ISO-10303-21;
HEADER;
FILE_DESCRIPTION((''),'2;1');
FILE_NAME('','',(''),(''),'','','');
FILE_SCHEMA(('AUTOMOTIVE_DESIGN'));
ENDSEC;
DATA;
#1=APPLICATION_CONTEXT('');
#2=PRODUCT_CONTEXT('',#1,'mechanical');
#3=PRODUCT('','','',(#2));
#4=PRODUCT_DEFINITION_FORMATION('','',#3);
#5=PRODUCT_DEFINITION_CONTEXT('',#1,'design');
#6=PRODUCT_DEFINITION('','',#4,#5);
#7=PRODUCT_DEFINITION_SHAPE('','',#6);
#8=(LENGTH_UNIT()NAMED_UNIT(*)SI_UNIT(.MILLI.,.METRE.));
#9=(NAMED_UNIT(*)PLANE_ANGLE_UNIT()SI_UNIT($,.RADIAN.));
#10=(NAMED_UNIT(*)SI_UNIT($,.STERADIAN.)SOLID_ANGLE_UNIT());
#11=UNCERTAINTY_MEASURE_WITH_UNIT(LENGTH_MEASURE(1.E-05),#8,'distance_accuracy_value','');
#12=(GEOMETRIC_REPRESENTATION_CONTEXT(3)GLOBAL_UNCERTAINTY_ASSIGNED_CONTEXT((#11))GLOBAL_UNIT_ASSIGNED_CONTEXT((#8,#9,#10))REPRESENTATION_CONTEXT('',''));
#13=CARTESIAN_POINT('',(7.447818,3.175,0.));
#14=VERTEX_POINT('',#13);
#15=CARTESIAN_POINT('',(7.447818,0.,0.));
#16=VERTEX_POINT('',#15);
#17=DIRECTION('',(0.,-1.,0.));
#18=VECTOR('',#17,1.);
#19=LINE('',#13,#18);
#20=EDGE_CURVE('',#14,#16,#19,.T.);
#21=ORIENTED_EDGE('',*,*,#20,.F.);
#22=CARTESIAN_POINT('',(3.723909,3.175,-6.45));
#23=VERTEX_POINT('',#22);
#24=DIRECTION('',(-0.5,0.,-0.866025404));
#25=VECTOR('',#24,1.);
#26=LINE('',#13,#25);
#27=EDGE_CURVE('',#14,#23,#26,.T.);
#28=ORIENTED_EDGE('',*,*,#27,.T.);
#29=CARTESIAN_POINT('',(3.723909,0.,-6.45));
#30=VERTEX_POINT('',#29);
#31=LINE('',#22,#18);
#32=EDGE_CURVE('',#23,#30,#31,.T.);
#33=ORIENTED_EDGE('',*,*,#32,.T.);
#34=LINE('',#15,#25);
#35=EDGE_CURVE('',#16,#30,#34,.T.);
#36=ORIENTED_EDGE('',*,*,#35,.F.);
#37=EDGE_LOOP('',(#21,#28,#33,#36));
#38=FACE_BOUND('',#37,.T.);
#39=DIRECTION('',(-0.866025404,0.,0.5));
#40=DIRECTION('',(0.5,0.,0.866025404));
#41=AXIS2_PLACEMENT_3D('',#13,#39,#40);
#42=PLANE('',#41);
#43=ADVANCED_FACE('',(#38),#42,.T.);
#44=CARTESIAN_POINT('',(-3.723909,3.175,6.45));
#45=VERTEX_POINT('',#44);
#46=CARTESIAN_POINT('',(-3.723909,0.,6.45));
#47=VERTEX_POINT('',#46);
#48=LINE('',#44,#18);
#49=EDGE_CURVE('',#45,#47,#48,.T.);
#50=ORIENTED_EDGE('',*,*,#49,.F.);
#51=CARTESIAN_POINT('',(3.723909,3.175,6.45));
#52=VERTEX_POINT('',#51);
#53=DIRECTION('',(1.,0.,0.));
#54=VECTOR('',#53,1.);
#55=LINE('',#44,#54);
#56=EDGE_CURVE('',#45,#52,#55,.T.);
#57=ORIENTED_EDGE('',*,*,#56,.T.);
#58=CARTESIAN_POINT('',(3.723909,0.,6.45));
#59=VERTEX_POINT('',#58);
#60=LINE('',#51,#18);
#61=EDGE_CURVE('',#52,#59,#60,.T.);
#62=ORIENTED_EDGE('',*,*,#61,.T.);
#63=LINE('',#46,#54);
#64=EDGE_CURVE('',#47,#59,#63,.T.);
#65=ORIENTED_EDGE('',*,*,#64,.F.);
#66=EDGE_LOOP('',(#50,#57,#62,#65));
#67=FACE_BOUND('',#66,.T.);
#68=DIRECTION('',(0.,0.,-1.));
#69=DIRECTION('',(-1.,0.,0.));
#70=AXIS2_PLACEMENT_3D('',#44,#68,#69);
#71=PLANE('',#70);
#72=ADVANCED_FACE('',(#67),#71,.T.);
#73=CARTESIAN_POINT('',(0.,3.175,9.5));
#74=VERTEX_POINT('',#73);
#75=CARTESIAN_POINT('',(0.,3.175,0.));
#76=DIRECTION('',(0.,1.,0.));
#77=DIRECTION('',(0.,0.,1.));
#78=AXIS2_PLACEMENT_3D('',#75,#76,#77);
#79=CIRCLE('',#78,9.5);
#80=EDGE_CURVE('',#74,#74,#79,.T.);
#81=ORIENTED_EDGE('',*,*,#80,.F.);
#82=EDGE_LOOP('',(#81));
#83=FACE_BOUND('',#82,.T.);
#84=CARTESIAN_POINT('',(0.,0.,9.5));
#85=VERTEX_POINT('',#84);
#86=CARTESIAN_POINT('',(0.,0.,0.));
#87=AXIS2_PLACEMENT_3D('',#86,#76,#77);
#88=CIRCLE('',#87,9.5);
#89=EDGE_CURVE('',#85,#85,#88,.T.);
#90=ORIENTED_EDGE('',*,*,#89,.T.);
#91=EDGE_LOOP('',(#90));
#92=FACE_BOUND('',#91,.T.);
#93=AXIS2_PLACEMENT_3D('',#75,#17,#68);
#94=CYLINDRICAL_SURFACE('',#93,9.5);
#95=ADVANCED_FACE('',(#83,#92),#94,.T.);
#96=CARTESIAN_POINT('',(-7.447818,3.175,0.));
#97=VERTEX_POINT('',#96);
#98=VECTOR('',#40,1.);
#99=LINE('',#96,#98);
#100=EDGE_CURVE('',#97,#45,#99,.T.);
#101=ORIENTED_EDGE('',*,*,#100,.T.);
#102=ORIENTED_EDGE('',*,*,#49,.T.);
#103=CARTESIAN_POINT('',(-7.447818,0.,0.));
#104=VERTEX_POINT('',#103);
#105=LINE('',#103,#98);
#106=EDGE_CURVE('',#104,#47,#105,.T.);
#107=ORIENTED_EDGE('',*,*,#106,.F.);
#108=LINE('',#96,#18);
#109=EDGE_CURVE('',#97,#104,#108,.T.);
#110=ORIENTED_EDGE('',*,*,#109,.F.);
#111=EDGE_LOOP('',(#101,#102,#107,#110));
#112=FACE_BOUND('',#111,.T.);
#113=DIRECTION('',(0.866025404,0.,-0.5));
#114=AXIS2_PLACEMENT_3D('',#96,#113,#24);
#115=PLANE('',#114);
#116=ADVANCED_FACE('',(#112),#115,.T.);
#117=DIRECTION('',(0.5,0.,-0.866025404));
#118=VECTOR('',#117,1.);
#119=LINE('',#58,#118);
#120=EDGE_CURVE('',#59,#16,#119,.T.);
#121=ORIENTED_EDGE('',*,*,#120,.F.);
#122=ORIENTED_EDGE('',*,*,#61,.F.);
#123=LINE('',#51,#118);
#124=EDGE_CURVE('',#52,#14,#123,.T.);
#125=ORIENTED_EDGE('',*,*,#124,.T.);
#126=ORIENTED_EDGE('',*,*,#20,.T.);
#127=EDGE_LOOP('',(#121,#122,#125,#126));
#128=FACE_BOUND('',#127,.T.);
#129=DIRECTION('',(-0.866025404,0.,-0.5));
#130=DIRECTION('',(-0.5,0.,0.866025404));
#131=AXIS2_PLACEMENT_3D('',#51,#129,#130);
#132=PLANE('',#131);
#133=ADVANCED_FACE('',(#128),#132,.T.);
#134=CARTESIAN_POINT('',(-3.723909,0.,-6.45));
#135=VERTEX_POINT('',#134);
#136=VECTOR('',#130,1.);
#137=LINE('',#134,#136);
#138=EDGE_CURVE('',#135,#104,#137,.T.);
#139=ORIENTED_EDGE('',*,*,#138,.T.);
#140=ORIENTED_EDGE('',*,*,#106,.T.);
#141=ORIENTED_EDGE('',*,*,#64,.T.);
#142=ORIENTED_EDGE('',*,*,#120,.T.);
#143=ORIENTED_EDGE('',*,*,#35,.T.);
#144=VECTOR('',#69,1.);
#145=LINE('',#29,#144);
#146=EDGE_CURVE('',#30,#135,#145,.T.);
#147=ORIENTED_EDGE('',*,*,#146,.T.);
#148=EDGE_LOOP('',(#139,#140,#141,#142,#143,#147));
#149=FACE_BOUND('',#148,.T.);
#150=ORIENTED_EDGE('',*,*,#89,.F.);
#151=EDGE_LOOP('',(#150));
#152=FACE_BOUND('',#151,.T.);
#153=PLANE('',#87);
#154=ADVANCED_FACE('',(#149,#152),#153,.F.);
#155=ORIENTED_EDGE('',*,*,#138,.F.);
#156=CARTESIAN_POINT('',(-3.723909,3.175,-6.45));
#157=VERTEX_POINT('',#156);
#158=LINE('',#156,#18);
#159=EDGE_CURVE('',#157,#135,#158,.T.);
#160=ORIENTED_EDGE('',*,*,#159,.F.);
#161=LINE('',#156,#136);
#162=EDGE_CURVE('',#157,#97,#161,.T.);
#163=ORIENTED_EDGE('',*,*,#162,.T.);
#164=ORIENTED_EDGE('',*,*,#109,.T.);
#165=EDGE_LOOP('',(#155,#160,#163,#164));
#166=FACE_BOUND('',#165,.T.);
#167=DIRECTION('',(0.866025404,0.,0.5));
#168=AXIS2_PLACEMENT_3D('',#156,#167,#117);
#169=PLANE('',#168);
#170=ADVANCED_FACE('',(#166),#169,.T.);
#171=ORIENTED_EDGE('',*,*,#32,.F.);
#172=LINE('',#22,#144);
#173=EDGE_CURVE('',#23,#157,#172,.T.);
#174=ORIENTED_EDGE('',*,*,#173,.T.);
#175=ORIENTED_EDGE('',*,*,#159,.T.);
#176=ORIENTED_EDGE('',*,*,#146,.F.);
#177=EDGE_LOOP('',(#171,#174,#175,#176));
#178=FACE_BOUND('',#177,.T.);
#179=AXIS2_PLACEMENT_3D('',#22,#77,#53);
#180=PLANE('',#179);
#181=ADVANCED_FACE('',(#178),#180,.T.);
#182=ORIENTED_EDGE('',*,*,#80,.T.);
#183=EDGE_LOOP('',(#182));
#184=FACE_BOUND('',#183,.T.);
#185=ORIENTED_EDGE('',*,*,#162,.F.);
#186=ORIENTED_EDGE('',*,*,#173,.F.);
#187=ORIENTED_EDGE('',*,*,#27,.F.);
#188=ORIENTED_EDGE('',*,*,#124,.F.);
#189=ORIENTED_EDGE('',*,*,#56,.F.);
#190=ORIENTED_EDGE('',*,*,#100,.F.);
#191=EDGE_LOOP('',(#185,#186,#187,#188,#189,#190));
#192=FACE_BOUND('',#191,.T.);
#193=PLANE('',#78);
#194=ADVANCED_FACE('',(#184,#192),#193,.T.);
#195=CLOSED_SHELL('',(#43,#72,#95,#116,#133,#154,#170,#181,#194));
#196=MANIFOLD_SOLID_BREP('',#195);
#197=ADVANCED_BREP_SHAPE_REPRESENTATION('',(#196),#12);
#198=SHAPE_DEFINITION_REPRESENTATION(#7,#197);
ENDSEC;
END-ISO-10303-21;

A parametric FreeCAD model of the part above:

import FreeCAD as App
import Part
import Sketcher
Q = App.Units.Quantity


def add_polygon(sketch, points):
    """Adds a closed chain of lines whose ends are joined by coincident constraints."""
    first, n = sketch.GeometryCount, len(points)
    for a, b in zip(points, points[1:] + points[:1]):
        sketch.addGeometry(Part.LineSegment(App.Vector(*a, 0), App.Vector(*b, 0)), False)
    for i in range(n):
        sketch.addConstraint(Sketcher.Constraint("Coincident", first + i, 2, first + (i + 1) % n, 1))

doc = App.newDocument("Part")
body = doc.addObject("PartDesign::Body", "Body")

# Sketch on XZ plane
sketch1 = body.newObject("Sketcher::SketchObject", "Sketch")
sketch1.AttachmentSupport = (doc.getObject("XZ_Plane"), [""])
sketch1.MapMode = "FlatFace"
sketch1.addGeometry(Part.Circle(App.Vector(0, 0, 0), App.Vector(0, 0, 1), 10), False)  # 0
add_polygon(sketch1, [(4, -6), (7, 0), (4, 6), (-4, 6), (-7, 0), (-4, -6)])  # lines 1-6
sketch1.addConstraint([
    Sketcher.Constraint("Horizontal", 3),
    Sketcher.Constraint("Horizontal", 6),
    Sketcher.Constraint("Coincident", 0, 3, -1, 1),
    Sketcher.Constraint("Symmetric", 1, 2, 4, 2, -1, 1),
    Sketcher.Constraint("Symmetric", 2, 2, 5, 2, -1, 1),
    Sketcher.Constraint("PointOnObject", 1, 2, -1),
    Sketcher.Constraint("Parallel", 1, 4),
    Sketcher.Constraint("Vertical", 3, 2, 5, 2),
    Sketcher.Constraint("Diameter", 0, 19.0),
    Sketcher.Constraint("Angle", 1, Q("60 deg")),
    Sketcher.Constraint("DistanceY", 5, 2, 3, 2, 12.9),
    Sketcher.Constraint("DistanceX", 3, 2, 3, 1, 7.447818),
])
pad1 = body.newObject("PartDesign::Pad", "Pad")
pad1.Profile = sketch1
pad1.Length = 3.175
pad1.Reversed = True

doc.recompute()
